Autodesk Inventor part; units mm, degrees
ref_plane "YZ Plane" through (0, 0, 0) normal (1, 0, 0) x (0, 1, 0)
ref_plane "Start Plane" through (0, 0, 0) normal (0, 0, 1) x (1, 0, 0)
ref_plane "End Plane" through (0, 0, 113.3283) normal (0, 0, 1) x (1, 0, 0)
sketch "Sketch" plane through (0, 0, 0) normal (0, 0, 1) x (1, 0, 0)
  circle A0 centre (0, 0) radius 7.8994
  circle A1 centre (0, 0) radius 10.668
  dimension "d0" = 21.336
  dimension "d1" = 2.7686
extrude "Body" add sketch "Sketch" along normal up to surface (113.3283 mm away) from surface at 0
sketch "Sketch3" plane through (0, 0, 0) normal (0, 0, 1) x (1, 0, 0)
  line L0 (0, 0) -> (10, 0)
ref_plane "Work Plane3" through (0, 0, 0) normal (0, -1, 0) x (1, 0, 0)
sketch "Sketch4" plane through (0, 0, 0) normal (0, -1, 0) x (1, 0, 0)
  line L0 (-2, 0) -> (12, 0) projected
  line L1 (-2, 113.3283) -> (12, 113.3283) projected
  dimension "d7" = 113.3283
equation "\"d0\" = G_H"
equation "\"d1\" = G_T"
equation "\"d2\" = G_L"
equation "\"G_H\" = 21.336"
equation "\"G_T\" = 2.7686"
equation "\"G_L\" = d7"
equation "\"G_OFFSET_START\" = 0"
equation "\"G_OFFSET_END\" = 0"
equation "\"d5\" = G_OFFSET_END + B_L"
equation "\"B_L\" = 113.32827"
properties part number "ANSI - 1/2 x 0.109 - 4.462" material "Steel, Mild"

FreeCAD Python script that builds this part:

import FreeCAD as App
import Part
import Sketcher
Q = App.Units.Quantity

doc = App.newDocument("Part")
body = doc.addObject("PartDesign::Body", "Body")

sketch1 = body.newObject("Sketcher::SketchObject", "Sketch")
sketch1.AttachmentSupport = (doc.getObject("XY_Plane"), [""])
sketch1.MapMode = "FlatFace"
sketch1.addGeometry([
    Part.Circle(App.Vector(0, 0, 0), App.Vector(0, 0, 1), 10.668),
    Part.Circle(App.Vector(0, 0, 0), App.Vector(0, 0, 1), 7.8994),
], False)
sketch1.addConstraint([
    Sketcher.Constraint("Coincident", 0, 3, -1, 1),
    Sketcher.Constraint("Coincident", 1, 3, -1, 1),
    Sketcher.Constraint("Diameter", 0, Q("0.84 in")),
    Sketcher.Constraint("Diameter", 1, Q("0.622 in")),
])
pad1 = body.newObject("PartDesign::Pad", "Pad")
pad1.Profile = sketch1
pad1.Length = 113.3283

doc.recompute()
